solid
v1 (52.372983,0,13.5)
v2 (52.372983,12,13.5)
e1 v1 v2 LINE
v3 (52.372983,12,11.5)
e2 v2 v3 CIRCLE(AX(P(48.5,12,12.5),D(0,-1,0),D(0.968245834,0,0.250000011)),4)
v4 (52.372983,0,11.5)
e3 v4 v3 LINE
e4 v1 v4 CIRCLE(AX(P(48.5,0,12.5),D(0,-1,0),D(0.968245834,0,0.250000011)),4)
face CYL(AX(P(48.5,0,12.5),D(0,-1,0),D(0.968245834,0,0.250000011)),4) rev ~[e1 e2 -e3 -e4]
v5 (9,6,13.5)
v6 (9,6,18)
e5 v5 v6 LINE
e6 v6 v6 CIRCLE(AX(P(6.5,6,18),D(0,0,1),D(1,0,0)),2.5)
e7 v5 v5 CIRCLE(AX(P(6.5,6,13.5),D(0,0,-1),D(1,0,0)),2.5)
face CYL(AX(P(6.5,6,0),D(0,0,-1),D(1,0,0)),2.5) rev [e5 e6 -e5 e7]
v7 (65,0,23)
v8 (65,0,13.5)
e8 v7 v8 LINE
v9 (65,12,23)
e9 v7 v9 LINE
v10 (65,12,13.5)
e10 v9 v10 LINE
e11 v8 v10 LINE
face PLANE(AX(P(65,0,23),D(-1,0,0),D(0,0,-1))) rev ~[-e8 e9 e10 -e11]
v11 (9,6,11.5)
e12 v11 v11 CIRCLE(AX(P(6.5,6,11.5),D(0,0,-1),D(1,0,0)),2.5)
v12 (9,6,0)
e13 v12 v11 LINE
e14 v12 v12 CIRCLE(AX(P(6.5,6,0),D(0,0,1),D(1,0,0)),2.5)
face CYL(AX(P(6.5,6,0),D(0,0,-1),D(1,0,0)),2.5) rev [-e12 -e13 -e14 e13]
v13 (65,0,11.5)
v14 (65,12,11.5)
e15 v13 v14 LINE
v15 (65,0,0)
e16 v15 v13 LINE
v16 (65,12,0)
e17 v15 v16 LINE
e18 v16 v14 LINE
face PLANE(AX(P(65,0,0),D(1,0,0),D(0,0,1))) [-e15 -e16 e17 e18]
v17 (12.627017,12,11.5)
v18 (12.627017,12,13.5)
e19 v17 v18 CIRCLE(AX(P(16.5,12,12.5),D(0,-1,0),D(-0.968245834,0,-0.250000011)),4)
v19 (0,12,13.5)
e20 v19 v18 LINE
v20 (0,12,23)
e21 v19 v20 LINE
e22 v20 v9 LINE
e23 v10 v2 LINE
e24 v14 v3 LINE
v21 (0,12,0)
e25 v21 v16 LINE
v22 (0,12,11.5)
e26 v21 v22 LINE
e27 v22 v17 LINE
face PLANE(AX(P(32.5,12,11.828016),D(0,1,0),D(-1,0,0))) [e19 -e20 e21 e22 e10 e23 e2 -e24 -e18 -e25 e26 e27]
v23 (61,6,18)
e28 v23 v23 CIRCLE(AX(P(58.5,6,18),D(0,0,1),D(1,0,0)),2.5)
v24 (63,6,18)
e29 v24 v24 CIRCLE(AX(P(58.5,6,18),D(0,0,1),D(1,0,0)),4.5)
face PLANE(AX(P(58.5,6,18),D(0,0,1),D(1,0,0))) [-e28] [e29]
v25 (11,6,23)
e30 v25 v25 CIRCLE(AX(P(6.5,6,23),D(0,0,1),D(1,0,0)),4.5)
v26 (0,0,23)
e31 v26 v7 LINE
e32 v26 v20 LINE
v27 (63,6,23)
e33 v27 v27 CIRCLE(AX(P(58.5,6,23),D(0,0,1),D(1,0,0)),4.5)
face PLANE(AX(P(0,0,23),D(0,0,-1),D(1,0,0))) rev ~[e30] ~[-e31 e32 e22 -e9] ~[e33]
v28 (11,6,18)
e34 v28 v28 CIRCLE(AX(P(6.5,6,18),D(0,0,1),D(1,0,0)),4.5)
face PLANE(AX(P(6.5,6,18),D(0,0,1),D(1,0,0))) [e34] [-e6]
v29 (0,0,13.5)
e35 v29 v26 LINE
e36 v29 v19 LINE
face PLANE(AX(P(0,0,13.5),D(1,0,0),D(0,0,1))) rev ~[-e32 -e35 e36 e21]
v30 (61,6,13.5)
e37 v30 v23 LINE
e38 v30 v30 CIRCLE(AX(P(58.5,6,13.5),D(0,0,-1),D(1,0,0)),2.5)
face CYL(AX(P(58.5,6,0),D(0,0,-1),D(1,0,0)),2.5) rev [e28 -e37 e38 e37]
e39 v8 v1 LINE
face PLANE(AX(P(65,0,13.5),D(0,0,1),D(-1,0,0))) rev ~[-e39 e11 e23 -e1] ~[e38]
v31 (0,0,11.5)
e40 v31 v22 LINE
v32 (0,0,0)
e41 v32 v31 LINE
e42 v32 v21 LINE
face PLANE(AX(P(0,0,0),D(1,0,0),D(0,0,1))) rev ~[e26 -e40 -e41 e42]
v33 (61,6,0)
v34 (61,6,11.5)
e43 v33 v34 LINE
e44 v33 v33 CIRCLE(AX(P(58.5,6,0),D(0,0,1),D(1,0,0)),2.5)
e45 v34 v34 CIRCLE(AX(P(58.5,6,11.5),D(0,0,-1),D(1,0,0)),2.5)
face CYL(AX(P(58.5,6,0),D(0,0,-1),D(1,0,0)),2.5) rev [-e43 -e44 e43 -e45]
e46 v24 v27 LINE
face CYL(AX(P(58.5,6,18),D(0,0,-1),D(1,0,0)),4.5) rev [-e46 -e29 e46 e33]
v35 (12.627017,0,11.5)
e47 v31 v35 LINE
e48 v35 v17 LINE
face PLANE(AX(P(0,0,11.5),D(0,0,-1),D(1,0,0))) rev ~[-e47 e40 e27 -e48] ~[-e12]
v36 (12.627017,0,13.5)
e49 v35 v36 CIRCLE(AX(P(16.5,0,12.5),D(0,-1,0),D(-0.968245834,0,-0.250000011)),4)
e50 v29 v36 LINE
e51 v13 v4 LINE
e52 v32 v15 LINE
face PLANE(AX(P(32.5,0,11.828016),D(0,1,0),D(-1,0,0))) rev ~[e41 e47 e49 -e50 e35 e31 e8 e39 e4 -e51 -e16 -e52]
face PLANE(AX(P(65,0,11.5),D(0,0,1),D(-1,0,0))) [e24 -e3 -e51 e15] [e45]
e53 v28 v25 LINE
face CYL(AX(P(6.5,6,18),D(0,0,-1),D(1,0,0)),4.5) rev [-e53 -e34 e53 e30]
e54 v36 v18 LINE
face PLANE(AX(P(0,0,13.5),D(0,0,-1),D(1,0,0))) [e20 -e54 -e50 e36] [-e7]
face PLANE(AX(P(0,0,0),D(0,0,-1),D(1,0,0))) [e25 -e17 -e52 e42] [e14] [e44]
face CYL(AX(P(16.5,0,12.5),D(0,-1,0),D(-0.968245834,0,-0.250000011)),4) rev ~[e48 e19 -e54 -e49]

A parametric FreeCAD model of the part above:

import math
import FreeCAD as App
import Part
import Sketcher
Q = App.Units.Quantity

doc = App.newDocument("Part")
body = doc.addObject("PartDesign::Body", "Body")

sketch1 = body.newObject("Sketcher::SketchObject", "Sketch")
sketch1.AttachmentSupport = (doc.getObject("XY_Plane"), [""])
sketch1.MapMode = "FlatFace"
sketch1.addGeometry(Part.Circle(App.Vector(0, 0, 0), App.Vector(0, 0, 1), 2.5), False)
sketch1.addConstraint([
    Sketcher.Constraint("Coincident", 0, 3, -1, 1),
    Sketcher.Constraint("Diameter", 0, Q("5 mm")),
])
pad1 = body.newObject("PartDesign::Pad", "Pad")
pad1.Profile = sketch1
pad1.Length = 18
body2 = doc.addObject("PartDesign::Body", "Body001")

sketch2 = body2.newObject("Sketcher::SketchObject", "Sketch001")
sketch2.AttachmentSupport = (doc.getObject("XY_Plane001"), [""])
sketch2.MapMode = "FlatFace"
sketch2.AttachmentOffset = App.Placement(App.Vector(0, 0, 18), App.Rotation())
sketch2.addGeometry(Part.Circle(App.Vector(0, 0, 0), App.Vector(0, 0, 1), 4.5), False)
sketch2.addConstraint([
    Sketcher.Constraint("Coincident", 0, 3, -1, 1),
    Sketcher.Constraint("Diameter", 0, Q("9 mm")),
])
pad2 = body2.newObject("PartDesign::Pad", "Pad001")
pad2.Profile = sketch2
pad2.Length = 5
doc.recompute()

boolean = body2.newObject("PartDesign::Boolean", "Boolean")
boolean.Type = "Fuse"
boolean.addObjects([body])
body3 = doc.addObject("PartDesign::Body", "Body002")
doc.recompute()

body2.Placement = App.Placement(App.Vector(58.5, 6, 0), App.Rotation(App.Vector(0, 0, 1), 0))
boolean2 = body3.newObject("PartDesign::Boolean", "Boolean001")
boolean2.Type = "Fuse"
boolean2.addObjects([body2])
body4 = doc.addObject("PartDesign::Body", "Body003")

sketch3 = body4.newObject("Sketcher::SketchObject", "Sketch002")
sketch3.AttachmentSupport = (doc.getObject("XY_Plane003"), [""])
sketch3.MapMode = "FlatFace"
sketch3.addGeometry(Part.Circle(App.Vector(0, 0, 0), App.Vector(0, 0, 1), 2.5), False)
sketch3.addConstraint([
    Sketcher.Constraint("Coincident", 0, 3, -1, 1),
    Sketcher.Constraint("Diameter", 0, Q("5 mm")),
])
pad3 = body4.newObject("PartDesign::Pad", "Pad002")
pad3.Profile = sketch3
pad3.Length = 18
body5 = doc.addObject("PartDesign::Body", "Body004")

sketch4 = body5.newObject("Sketcher::SketchObject", "Sketch003")
sketch4.AttachmentSupport = (doc.getObject("XY_Plane004"), [""])
sketch4.MapMode = "FlatFace"
sketch4.AttachmentOffset = App.Placement(App.Vector(0, 0, 18), App.Rotation())
sketch4.addGeometry(Part.Circle(App.Vector(0, 0, 0), App.Vector(0, 0, 1), 4.5), False)
sketch4.addConstraint([
    Sketcher.Constraint("Coincident", 0, 3, -1, 1),
    Sketcher.Constraint("Diameter", 0, Q("9 mm")),
])
pad4 = body5.newObject("PartDesign::Pad", "Pad003")
pad4.Profile = sketch4
pad4.Length = 5
doc.recompute()

boolean3 = body5.newObject("PartDesign::Boolean", "Boolean002")
boolean3.Type = "Fuse"
boolean3.addObjects([body4])
body6 = doc.addObject("PartDesign::Body", "Body005")
body6.AllowCompound = True
doc.recompute()

body5.Placement = App.Placement(App.Vector(6.5, 6, 0), App.Rotation(App.Vector(0, 0, 1), 0))
boolean4 = body6.newObject("PartDesign::Boolean", "Boolean003")
boolean4.Type = "Fuse"
boolean4.addObjects([body5])
doc.recompute()

boolean5 = body6.newObject("PartDesign::Boolean", "Boolean004")
boolean5.Type = "Fuse"
boolean5.addObjects([body3])
body7 = doc.addObject("PartDesign::Body", "Body006")

sketch5 = body7.newObject("Sketcher::SketchObject", "Sketch004")
sketch5.AttachmentSupport = (doc.getObject("XZ_Plane006"), [""])
sketch5.MapMode = "FlatFace"
sketch5.addGeometry([
    Part.LineSegment(App.Vector(0, 11.5, 0), App.Vector(0, 0, 0)),
    Part.LineSegment(App.Vector(0, 0, 0), App.Vector(65, 0, 0)),
    Part.LineSegment(App.Vector(65, 0, 0), App.Vector(65, 11.5, 0)),
    Part.LineSegment(App.Vector(65, 11.5, 0), App.Vector(52.4, 11.5, 0)),
    Part.ArcOfCircle(Part.Circle(App.Vector(48.5, 12.5, 0), App.Vector(0, 0, 1), 4), math.radians(14), math.radians(346)),
    Part.LineSegment(App.Vector(52.4, 13.5, 0), App.Vector(65, 13.5, 0)),
    Part.LineSegment(App.Vector(65, 13.5, 0), App.Vector(65, 23, 0)),
    Part.LineSegment(App.Vector(65, 23, 0), App.Vector(0, 23, 0)),
    Part.LineSegment(App.Vector(0, 23, 0), App.Vector(0, 13.5, 0)),
    Part.LineSegment(App.Vector(0, 13.5, 0), App.Vector(12.6, 13.5, 0)),
    Part.ArcOfCircle(Part.Circle(App.Vector(16.5, 12.5, 0), App.Vector(0, 0, 1), 4), math.radians(-166), math.radians(166)),
    Part.LineSegment(App.Vector(12.6, 11.5, 0), App.Vector(0, 11.5, 0)),
], False)
sketch5.addConstraint([
    Sketcher.Constraint("Coincident", 0, 2, 1, 1),
    Sketcher.Constraint("Coincident", 1, 2, 2, 1),
    Sketcher.Constraint("Coincident", 2, 2, 3, 1),
    Sketcher.Constraint("Coincident", 3, 2, 4, 2),
    Sketcher.Constraint("Coincident", 4, 1, 5, 1),
    Sketcher.Constraint("Coincident", 5, 2, 6, 1),
    Sketcher.Constraint("Coincident", 6, 2, 7, 1),
    Sketcher.Constraint("Coincident", 7, 2, 8, 1),
    Sketcher.Constraint("Coincident", 8, 2, 9, 1),
    Sketcher.Constraint("Coincident", 9, 2, 10, 2),
    Sketcher.Constraint("Coincident", 10, 1, 11, 1),
    Sketcher.Constraint("Coincident", 11, 2, 0, 1),
    Sketcher.Constraint("Vertical", 0),
    Sketcher.Constraint("Horizontal", 1),
    Sketcher.Constraint("Vertical", 2),
    Sketcher.Constraint("Horizontal", 3),
    Sketcher.Constraint("Horizontal", 5),
    Sketcher.Constraint("Vertical", 6),
    Sketcher.Constraint("Horizontal", 7),
    Sketcher.Constraint("Vertical", 8),
    Sketcher.Constraint("Horizontal", 9),
    Sketcher.Constraint("Horizontal", 11),
    Sketcher.Constraint("Coincident", 0, 2, -1, 1),
    Sketcher.Constraint("Equal", 4, 10),
    Sketcher.Constraint("PointOnObject", 7, 2, -2),
    Sketcher.Constraint("Horizontal", 4, 3, 10, 3),
    Sketcher.Constraint("Horizontal", 5, 2, 8, 2),
    Sketcher.Constraint("Horizontal", 3, 2, 10, 1),
    Sketcher.Constraint("Vertical", 3, 2, 4, 1),
    Sketcher.Constraint("Vertical", 2, 2, 5, 2),
    Sketcher.Constraint("Equal", 5, 9),
    Sketcher.Constraint("Radius", 4, Q("4 mm")),
    Sketcher.Constraint("DistanceX", 1, 1, 1, 2, Q("65 mm")),
    Sketcher.Constraint("DistanceY", 0, 2, 0, 1, Q("11.5 mm")),
    Sketcher.Constraint("DistanceY", 6, 1, 6, 2, Q("9.5 mm")),
    Sketcher.Constraint("DistanceY", -1, 1, 6, 2, Q("23 mm")),
    Sketcher.Constraint("DistanceX", 10, 3, 4, 3, Q("32 mm")),
])
pad5 = body7.newObject("PartDesign::Pad", "Pad004")
pad5.Profile = sketch5
pad5.Length = 12
pad5.Reversed = True
doc.recompute()

boolean6 = body7.newObject("PartDesign::Boolean", "Boolean005")
boolean6.Type = "Cut"
boolean6.addObjects([body6])

doc.recompute()
